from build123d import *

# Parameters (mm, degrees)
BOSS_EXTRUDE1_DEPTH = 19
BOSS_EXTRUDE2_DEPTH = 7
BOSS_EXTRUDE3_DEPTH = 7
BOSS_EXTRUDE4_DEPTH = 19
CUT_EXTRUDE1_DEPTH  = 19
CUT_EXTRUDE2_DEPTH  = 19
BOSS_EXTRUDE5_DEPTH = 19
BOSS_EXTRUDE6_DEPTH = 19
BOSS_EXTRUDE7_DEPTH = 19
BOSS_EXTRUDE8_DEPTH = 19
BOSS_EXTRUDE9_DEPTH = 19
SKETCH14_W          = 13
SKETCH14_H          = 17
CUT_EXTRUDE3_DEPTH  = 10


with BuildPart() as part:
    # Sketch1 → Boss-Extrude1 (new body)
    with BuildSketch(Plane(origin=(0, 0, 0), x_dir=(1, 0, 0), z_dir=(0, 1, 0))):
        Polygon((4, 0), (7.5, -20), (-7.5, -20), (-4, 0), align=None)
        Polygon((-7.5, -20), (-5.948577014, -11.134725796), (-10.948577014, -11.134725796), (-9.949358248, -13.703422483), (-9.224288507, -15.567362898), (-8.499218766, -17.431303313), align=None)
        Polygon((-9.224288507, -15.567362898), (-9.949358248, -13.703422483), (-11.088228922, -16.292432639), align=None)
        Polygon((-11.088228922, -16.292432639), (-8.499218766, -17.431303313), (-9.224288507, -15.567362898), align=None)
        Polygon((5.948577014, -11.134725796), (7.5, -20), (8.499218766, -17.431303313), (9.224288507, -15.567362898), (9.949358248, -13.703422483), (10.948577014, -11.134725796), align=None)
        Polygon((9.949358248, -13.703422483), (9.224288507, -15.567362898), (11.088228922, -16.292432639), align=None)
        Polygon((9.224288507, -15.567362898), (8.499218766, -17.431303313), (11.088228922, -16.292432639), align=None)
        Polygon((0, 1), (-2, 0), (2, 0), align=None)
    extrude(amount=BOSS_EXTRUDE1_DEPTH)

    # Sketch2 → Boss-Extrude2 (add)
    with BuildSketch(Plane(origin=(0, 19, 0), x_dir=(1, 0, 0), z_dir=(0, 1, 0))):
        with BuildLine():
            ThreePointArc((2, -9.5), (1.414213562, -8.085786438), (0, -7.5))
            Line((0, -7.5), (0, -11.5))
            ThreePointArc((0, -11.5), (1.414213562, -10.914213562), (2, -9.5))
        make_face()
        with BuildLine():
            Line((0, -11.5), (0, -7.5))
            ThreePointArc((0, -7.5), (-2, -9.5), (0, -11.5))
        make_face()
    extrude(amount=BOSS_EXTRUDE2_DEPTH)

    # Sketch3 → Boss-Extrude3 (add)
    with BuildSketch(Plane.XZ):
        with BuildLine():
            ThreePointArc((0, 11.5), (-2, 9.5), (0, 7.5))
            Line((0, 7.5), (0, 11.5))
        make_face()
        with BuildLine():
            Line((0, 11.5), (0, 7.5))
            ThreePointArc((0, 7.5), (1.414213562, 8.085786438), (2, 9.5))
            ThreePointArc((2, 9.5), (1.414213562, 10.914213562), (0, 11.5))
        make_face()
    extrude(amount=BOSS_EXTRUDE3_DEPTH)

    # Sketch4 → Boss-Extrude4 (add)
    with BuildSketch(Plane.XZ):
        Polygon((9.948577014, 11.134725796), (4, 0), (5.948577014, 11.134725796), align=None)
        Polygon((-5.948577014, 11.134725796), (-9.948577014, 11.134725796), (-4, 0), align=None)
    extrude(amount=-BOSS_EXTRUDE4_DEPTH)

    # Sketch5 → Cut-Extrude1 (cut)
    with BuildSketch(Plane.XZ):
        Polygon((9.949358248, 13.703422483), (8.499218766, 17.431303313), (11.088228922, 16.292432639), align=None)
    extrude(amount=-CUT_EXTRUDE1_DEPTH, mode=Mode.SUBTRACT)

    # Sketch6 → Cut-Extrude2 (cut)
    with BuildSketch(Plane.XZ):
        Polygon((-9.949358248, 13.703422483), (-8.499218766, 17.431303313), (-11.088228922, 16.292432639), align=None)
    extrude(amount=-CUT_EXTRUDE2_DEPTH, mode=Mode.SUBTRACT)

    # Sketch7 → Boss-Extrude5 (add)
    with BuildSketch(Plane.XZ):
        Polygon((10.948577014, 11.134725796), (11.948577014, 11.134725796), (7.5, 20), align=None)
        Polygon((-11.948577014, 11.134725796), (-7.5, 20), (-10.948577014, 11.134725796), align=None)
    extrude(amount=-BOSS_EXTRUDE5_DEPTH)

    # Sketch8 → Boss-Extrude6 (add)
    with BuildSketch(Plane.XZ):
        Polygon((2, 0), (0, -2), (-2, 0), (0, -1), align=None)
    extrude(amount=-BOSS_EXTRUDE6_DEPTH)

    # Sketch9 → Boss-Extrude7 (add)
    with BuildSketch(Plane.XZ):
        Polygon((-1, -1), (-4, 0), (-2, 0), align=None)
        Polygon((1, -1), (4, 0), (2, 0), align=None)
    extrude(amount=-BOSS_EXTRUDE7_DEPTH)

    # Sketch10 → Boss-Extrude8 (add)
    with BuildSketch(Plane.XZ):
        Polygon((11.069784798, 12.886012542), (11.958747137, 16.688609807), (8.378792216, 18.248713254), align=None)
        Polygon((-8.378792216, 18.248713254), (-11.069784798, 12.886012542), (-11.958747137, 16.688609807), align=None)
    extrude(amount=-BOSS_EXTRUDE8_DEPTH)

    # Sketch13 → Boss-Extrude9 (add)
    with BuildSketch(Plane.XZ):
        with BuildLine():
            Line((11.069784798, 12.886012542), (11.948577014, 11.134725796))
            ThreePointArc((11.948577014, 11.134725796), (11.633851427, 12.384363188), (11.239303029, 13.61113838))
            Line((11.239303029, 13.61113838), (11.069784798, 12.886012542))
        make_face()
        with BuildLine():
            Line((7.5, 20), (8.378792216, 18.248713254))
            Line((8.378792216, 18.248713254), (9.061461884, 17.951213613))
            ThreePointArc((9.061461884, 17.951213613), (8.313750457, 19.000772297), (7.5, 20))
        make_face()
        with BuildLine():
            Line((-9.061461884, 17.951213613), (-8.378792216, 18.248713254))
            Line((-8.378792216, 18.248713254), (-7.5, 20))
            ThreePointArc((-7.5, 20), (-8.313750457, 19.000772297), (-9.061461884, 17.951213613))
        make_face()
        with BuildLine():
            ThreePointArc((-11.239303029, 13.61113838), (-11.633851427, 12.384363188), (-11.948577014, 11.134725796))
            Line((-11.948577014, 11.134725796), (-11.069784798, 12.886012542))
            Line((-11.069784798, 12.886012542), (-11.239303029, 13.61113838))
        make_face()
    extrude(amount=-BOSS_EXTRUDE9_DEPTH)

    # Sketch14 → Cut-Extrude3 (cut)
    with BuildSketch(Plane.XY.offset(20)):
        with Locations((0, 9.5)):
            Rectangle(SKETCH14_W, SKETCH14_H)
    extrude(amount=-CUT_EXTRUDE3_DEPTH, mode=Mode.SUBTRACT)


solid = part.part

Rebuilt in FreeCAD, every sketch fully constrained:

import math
import FreeCAD as App
import Part
import Sketcher
from FreeCAD import Vector
Q = App.Units.Quantity

doc = App.newDocument("Part")
body = doc.addObject("PartDesign::Body", "Body")

sketch1 = doc.addObject("Sketcher::SketchObject", "Sketch")
body.addObject(sketch1)
sketch1.AttachmentSupport = (doc.XZ_Plane, [""])
sketch1.MapMode = "FlatFace"
sketch1.addGeometry([
    Part.LineSegment(Vector(5.948577, 11.134726, 0), Vector(4, 0, 0)),
    Part.LineSegment(Vector(4, 0, 0), Vector(2, 0, 0)),
    Part.LineSegment(Vector(2, 0, 0), Vector(0, -1, 0)),
    Part.LineSegment(Vector(0, -1, 0), Vector(-2, 0, 0)),
    Part.LineSegment(Vector(-2, 0, 0), Vector(-4, 0, 0)),
    Part.LineSegment(Vector(-4, 0, 0), Vector(-5.948577, 11.134726, 0)),
    Part.LineSegment(Vector(-5.948577, 11.134726, 0), Vector(-10.948577, 11.134726, 0)),
    Part.LineSegment(Vector(-10.948577, 11.134726, 0), Vector(-9.949358, 13.703422, 0)),
    Part.LineSegment(Vector(-9.949358, 13.703422, 0), Vector(-11.088229, 16.292433, 0)),
    Part.LineSegment(Vector(-11.088229, 16.292433, 0), Vector(-8.499219, 17.431303, 0)),
    Part.LineSegment(Vector(-8.499219, 17.431303, 0), Vector(-7.5, 20, 0)),
    Part.LineSegment(Vector(-7.5, 20, 0), Vector(7.5, 20, 0)),
    Part.LineSegment(Vector(7.5, 20, 0), Vector(8.499219, 17.431303, 0)),
    Part.LineSegment(Vector(8.499219, 17.431303, 0), Vector(11.088229, 16.292433, 0)),
    Part.LineSegment(Vector(11.088229, 16.292433, 0), Vector(9.949358, 13.703422, 0)),
    Part.LineSegment(Vector(9.949358, 13.703422, 0), Vector(10.948577, 11.134726, 0)),
    Part.LineSegment(Vector(10.948577, 11.134726, 0), Vector(5.948577, 11.134726, 0)),
], False)
sketch1.addConstraint([
    Sketcher.Constraint("Coincident", 0, 2, 1, 1),
    Sketcher.Constraint("Coincident", 1, 2, 2, 1),
    Sketcher.Constraint("Coincident", 2, 2, 3, 1),
    Sketcher.Constraint("Coincident", 3, 2, 4, 1),
    Sketcher.Constraint("Coincident", 4, 2, 5, 1),
    Sketcher.Constraint("Coincident", 5, 2, 6, 1),
    Sketcher.Constraint("Coincident", 6, 2, 7, 1),
    Sketcher.Constraint("Coincident", 7, 2, 8, 1),
    Sketcher.Constraint("Coincident", 8, 2, 9, 1),
    Sketcher.Constraint("Coincident", 9, 2, 10, 1),
    Sketcher.Constraint("Coincident", 10, 2, 11, 1),
    Sketcher.Constraint("Coincident", 11, 2, 12, 1),
    Sketcher.Constraint("Coincident", 12, 2, 13, 1),
    Sketcher.Constraint("Coincident", 13, 2, 14, 1),
    Sketcher.Constraint("Coincident", 14, 2, 15, 1),
    Sketcher.Constraint("Coincident", 15, 2, 16, 1),
    Sketcher.Constraint("Coincident", 16, 2, 0, 1),
    Sketcher.Constraint("Horizontal", 1),
    Sketcher.Constraint("Horizontal", 4),
    Sketcher.Constraint("Horizontal", 6),
    Sketcher.Constraint("Horizontal", 11),
    Sketcher.Constraint("Horizontal", 16),
    Sketcher.Constraint("Symmetric", 1, 2, 3, 2, -1, 1),
    Sketcher.Constraint("Symmetric", 0, 2, 4, 2, -2),
    Sketcher.Constraint("Symmetric", 9, 2, 12, 2, -2),
    Sketcher.Constraint("Symmetric", 8, 2, 13, 2, -2),
    Sketcher.Constraint("Symmetric", 7, 2, 14, 2, -2),
    Sketcher.Constraint("Symmetric", 6, 2, 15, 2, -2),
    Sketcher.Constraint("PointOnObject", 2, 2, -2),
    Sketcher.Constraint("Perpendicular", 8, 9),
    Sketcher.Constraint("Parallel", 7, 10),
    Sketcher.Constraint("Parallel", 12, 15),
    Sketcher.Constraint("Equal", 6, 16),
    Sketcher.Constraint("Equal", 8, 9),
    Sketcher.Constraint("Equal", 7, 10),
    Sketcher.Constraint("DistanceX", 1, 2, 1, 1, Q("2 mm")),
    Sketcher.Constraint("DistanceX", 6, 2, 6, 1, Q("5 mm")),
    Sketcher.Constraint("DistanceX", 11, 1, 11, 2, Q("15 mm")),
    Sketcher.Constraint("DistanceX", -1, 1, 0, 2, Q("4 mm")),
    Sketcher.Constraint("DistanceY", 2, 2, -1, 1, Q("1 mm")),
    Sketcher.Constraint("DistanceY", -1, 1, 10, 2, Q("20 mm")),
    Sketcher.Constraint("Distance", 7, Q("2.7562 mm")),
    Sketcher.Constraint("Distance", 0, Q("11.303941 mm")),
    Sketcher.Constraint("DistanceX", 7, 2, -1, 1, Q("9.949358 mm")),
    Sketcher.Constraint("DistanceX", 8, 2, -1, 1, Q("11.088229 mm")),
])
pad1 = doc.addObject("PartDesign::Pad", "Pad")
body.addObject(pad1)
pad1.Profile = sketch1
pad1.Length = 19
pad1.Reversed = True

sketch2 = doc.addObject("Sketcher::SketchObject", "Sketch001")
body.addObject(sketch2)
sketch2.AttachmentSupport = (doc.XZ_Plane, [""])
sketch2.MapMode = "FlatFace"
sketch2.AttachmentOffset = App.Placement(Vector(0, 0, -19), App.Rotation())
sketch2.addGeometry([
    Part.ArcOfCircle(Part.Circle(Vector(0, 9.5, 0), Vector(0, 0, 1), 2), math.radians(-90), math.radians(0)),
    Part.ArcOfCircle(Part.Circle(Vector(0, 9.5, 0), Vector(0, 0, 1), 2), math.radians(90), math.radians(270)),
    Part.ArcOfCircle(Part.Circle(Vector(0, 9.5, 0), Vector(0, 0, 1), 2), math.radians(0), math.radians(90)),
], False)
sketch2.addConstraint([
    Sketcher.Constraint("Tangent", 0, 1, 1, 2),
    Sketcher.Constraint("Tangent", 1, 1, 2, 2),
    Sketcher.Constraint("Tangent", 2, 1, 0, 2),
    Sketcher.Constraint("PointOnObject", 0, 3, -2),
    Sketcher.Constraint("PointOnObject", 0, 1, -2),
    Sketcher.Constraint("PointOnObject", 1, 1, -2),
    Sketcher.Constraint("Horizontal", 1, 3, 2, 1),
    Sketcher.Constraint("Radius", 0, Q("2 mm")),
    Sketcher.Constraint("DistanceY", -1, 1, 0, 3, Q("9.5 mm")),
])
pad2 = doc.addObject("PartDesign::Pad", "Pad001")
body.addObject(pad2)
pad2.Profile = sketch2
pad2.Length = 7
pad2.Reversed = True

sketch3 = doc.addObject("Sketcher::SketchObject", "Sketch002")
body.addObject(sketch3)
sketch3.AttachmentSupport = (doc.XZ_Plane, [""])
sketch3.MapMode = "FlatFace"
sketch3.addGeometry([
    Part.ArcOfCircle(Part.Circle(Vector(0, 9.5, 0), Vector(0, 0, 1), 2), math.radians(90), math.radians(270)),
    Part.ArcOfCircle(Part.Circle(Vector(0, 9.5, 0), Vector(0, 0, 1), 2), math.radians(-90), math.radians(0)),
    Part.ArcOfCircle(Part.Circle(Vector(0, 9.5, 0), Vector(0, 0, 1), 2), math.radians(0), math.radians(90)),
], False)
sketch3.addConstraint([
    Sketcher.Constraint("Tangent", 0, 2, 1, 1),
    Sketcher.Constraint("Tangent", 1, 2, 2, 1),
    Sketcher.Constraint("Tangent", 2, 2, 0, 1),
    Sketcher.Constraint("PointOnObject", 0, 3, -2),
    Sketcher.Constraint("PointOnObject", 0, 2, -2),
    Sketcher.Constraint("PointOnObject", 2, 2, -2),
    Sketcher.Constraint("Horizontal", 2, 3, 1, 2),
    Sketcher.Constraint("Radius", 0, Q("2 mm")),
    Sketcher.Constraint("DistanceY", -1, 1, 0, 3, Q("9.5 mm")),
])
pad3 = doc.addObject("PartDesign::Pad", "Pad002")
body.addObject(pad3)
pad3.Profile = sketch3
pad3.Length = 7

sketch4 = doc.addObject("Sketcher::SketchObject", "Sketch003")
body.addObject(sketch4)
sketch4.AttachmentSupport = (doc.XZ_Plane, [""])
sketch4.MapMode = "FlatFace"
sketch4.addGeometry([
    Part.LineSegment(Vector(4, 0, 0), Vector(9.948577, 11.134726, 0)),
    Part.LineSegment(Vector(9.948577, 11.134726, 0), Vector(5.948577, 11.134726, 0)),
    Part.LineSegment(Vector(5.948577, 11.134726, 0), Vector(4, 0, 0)),
    Part.LineSegment(Vector(-5.948577, 11.134726, 0), Vector(-9.948577, 11.134726, 0)),
    Part.LineSegment(Vector(-9.948577, 11.134726, 0), Vector(-4, 0, 0)),
    Part.LineSegment(Vector(-4, 0, 0), Vector(-5.948577, 11.134726, 0)),
], False)
sketch4.addConstraint([
    Sketcher.Constraint("Coincident", 0, 2, 1, 1),
    Sketcher.Constraint("Coincident", 1, 2, 2, 1),
    Sketcher.Constraint("Coincident", 2, 2, 0, 1),
    Sketcher.Constraint("Coincident", 3, 2, 4, 1),
    Sketcher.Constraint("Coincident", 4, 2, 5, 1),
    Sketcher.Constraint("Coincident", 5, 2, 3, 1),
    Sketcher.Constraint("Horizontal", 1),
    Sketcher.Constraint("Horizontal", 3),
    Sketcher.Constraint("Symmetric", 2, 2, 4, 2, -1, 1),
    Sketcher.Constraint("Symmetric", 0, 2, 3, 2, -2),
    Sketcher.Constraint("PointOnObject", 2, 2, -1),
    Sketcher.Constraint("Equal", 1, 3),
    Sketcher.Constraint("DistanceX", 1, 2, 1, 1, Q("4 mm")),
    Sketcher.Constraint("DistanceX", -1, 1, 2, 2, Q("4 mm")),
    Sketcher.Constraint("Distance", 0, Q("12.624092 mm")),
    Sketcher.Constraint("Distance", 2, Q("11.303941 mm")),
])
pad4 = doc.addObject("PartDesign::Pad", "Pad003")
body.addObject(pad4)
pad4.Profile = sketch4
pad4.Length = 19
pad4.Reversed = True

sketch5 = doc.addObject("Sketcher::SketchObject", "Sketch004")
body.addObject(sketch5)
sketch5.AttachmentSupport = (doc.XZ_Plane, [""])
sketch5.MapMode = "FlatFace"
sketch5.addGeometry([
    Part.LineSegment(Vector(8.499219, 17.431303, 0), Vector(9.949358, 13.703422, 0)),
    Part.LineSegment(Vector(9.949358, 13.703422, 0), Vector(11.088229, 16.292433, 0)),
    Part.LineSegment(Vector(11.088229, 16.292433, 0), Vector(8.499219, 17.431303, 0)),
], False)
sketch5.addConstraint([
    Sketcher.Constraint("Coincident", 0, 2, 1, 1),
    Sketcher.Constraint("Coincident", 1, 2, 2, 1),
    Sketcher.Constraint("Coincident", 2, 2, 0, 1),
    Sketcher.Constraint("Perpendicular", 1, 2),
    Sketcher.Constraint("Equal", 1, 2),
    Sketcher.Constraint("Distance", 0, Q("4 mm")),
    Sketcher.Constraint("DistanceX", -1, 1, 0, 2, Q("9.949358 mm")),
    Sketcher.Constraint("DistanceX", -1, 1, 1, 2, Q("11.088229 mm")),
    Sketcher.Constraint("DistanceY", -1, 1, 0, 2, Q("13.703422 mm")),
])
pocket1 = doc.addObject("PartDesign::Pocket", "Pocket")
body.addObject(pocket1)
pocket1.Profile = sketch5
pocket1.Length = 19

sketch6 = doc.addObject("Sketcher::SketchObject", "Sketch005")
body.addObject(sketch6)
sketch6.AttachmentSupport = (doc.XZ_Plane, [""])
sketch6.MapMode = "FlatFace"
sketch6.addGeometry([
    Part.LineSegment(Vector(-9.949358, 13.703422, 0), Vector(-8.499219, 17.431303, 0)),
    Part.LineSegment(Vector(-8.499219, 17.431303, 0), Vector(-11.088229, 16.292433, 0)),
    Part.LineSegment(Vector(-11.088229, 16.292433, 0), Vector(-9.949358, 13.703422, 0)),
], False)
sketch6.addConstraint([
    Sketcher.Constraint("Coincident", 0, 2, 1, 1),
    Sketcher.Constraint("Coincident", 1, 2, 2, 1),
    Sketcher.Constraint("Coincident", 2, 2, 0, 1),
    Sketcher.Constraint("Perpendicular", 1, 2),
    Sketcher.Constraint("Equal", 1, 2),
    Sketcher.Constraint("Distance", 0, Q("4 mm")),
    Sketcher.Constraint("DistanceX", 0, 2, -1, 1, Q("8.499219 mm")),
    Sketcher.Constraint("DistanceX", 1, 2, -1, 1, Q("11.088229 mm")),
    Sketcher.Constraint("DistanceY", -1, 1, 0, 2, Q("17.431303 mm")),
])
pocket2 = doc.addObject("PartDesign::Pocket", "Pocket001")
body.addObject(pocket2)
pocket2.Profile = sketch6
pocket2.Length = 19

sketch7 = doc.addObject("Sketcher::SketchObject", "Sketch006")
body.addObject(sketch7)
sketch7.AttachmentSupport = (doc.XZ_Plane, [""])
sketch7.MapMode = "FlatFace"
sketch7.addGeometry([
    Part.LineSegment(Vector(10.948577, 11.134726, 0), Vector(11.948577, 11.134726, 0)),
    Part.LineSegment(Vector(11.948577, 11.134726, 0), Vector(7.5, 20, 0)),
    Part.LineSegment(Vector(7.5, 20, 0), Vector(10.948577, 11.134726, 0)),
    Part.LineSegment(Vector(-7.5, 20, 0), Vector(-11.948577, 11.134726, 0)),
    Part.LineSegment(Vector(-11.948577, 11.134726, 0), Vector(-10.948577, 11.134726, 0)),
    Part.LineSegment(Vector(-10.948577, 11.134726, 0), Vector(-7.5, 20, 0)),
], False)
sketch7.addConstraint([
    Sketcher.Constraint("Coincident", 0, 2, 1, 1),
    Sketcher.Constraint("Coincident", 1, 2, 2, 1),
    Sketcher.Constraint("Coincident", 2, 2, 0, 1),
    Sketcher.Constraint("Coincident", 3, 2, 4, 1),
    Sketcher.Constraint("Coincident", 4, 2, 5, 1),
    Sketcher.Constraint("Coincident", 5, 2, 3, 1),
    Sketcher.Constraint("Horizontal", 0),
    Sketcher.Constraint("Horizontal", 4),
    Sketcher.Constraint("Symmetric", 0, 2, 3, 2, -2),
    Sketcher.Constraint("Symmetric", 1, 2, 5, 2, -2),
    Sketcher.Constraint("Equal", 0, 4),
    Sketcher.Constraint("DistanceX", 0, 1, 0, 2, Q("1 mm")),
    Sketcher.Constraint("DistanceY", -1, 1, 1, 2, Q("20 mm")),
    Sketcher.Constraint("DistanceX", 5, 2, 1, 2, Q("15 mm")),
    Sketcher.Constraint("Distance", 2, Q("9.512401 mm")),
    Sketcher.Constraint("Distance", 1, Q("9.918817 mm")),
])
pad5 = doc.addObject("PartDesign::Pad", "Pad004")
body.addObject(pad5)
pad5.Profile = sketch7
pad5.Length = 19
pad5.Reversed = True

sketch8 = doc.addObject("Sketcher::SketchObject", "Sketch007")
body.addObject(sketch8)
sketch8.AttachmentSupport = (doc.XZ_Plane, [""])
sketch8.MapMode = "FlatFace"
sketch8.addGeometry([
    Part.LineSegment(Vector(0, -2, 0), Vector(2, 0, 0)),
    Part.LineSegment(Vector(2, 0, 0), Vector(0, -1, 0)),
    Part.LineSegment(Vector(0, -1, 0), Vector(-2, 0, 0)),
    Part.LineSegment(Vector(-2, 0, 0), Vector(0, -2, 0)),
], False)
sketch8.addConstraint([
    Sketcher.Constraint("Coincident", 0, 2, 1, 1),
    Sketcher.Constraint("Coincident", 1, 2, 2, 1),
    Sketcher.Constraint("Coincident", 2, 2, 3, 1),
    Sketcher.Constraint("Coincident", 3, 2, 0, 1),
    Sketcher.Constraint("Symmetric", 0, 2, 2, 2, -1, 1),
    Sketcher.Constraint("PointOnObject", 0, 2, -1),
    Sketcher.Constraint("PointOnObject", 1, 2, -2),
    Sketcher.Constraint("PointOnObject", 3, 2, -2),
    Sketcher.Constraint("Perpendicular", 0, 3),
    Sketcher.Constraint("DistanceX", -1, 1, 0, 2, Q("2 mm")),
    Sketcher.Constraint("DistanceY", 1, 2, -1, 1, Q("1 mm")),
])
pad6 = doc.addObject("PartDesign::Pad", "Pad005")
body.addObject(pad6)
pad6.Profile = sketch8
pad6.Length = 19
pad6.Reversed = True

sketch9 = doc.addObject("Sketcher::SketchObject", "Sketch008")
body.addObject(sketch9)
sketch9.AttachmentSupport = (doc.XZ_Plane, [""])
sketch9.MapMode = "FlatFace"
sketch9.addGeometry([
    Part.LineSegment(Vector(-4, 0, 0), Vector(-1, -1, 0)),
    Part.LineSegment(Vector(-1, -1, 0), Vector(-2, 0, 0)),
    Part.LineSegment(Vector(-2, 0, 0), Vector(-4, 0, 0)),
    Part.LineSegment(Vector(1, -1, 0), Vector(4, 0, 0)),
    Part.LineSegment(Vector(4, 0, 0), Vector(2, 0, 0)),
    Part.LineSegment(Vector(2, 0, 0), Vector(1, -1, 0)),
], False)
sketch9.addConstraint([
    Sketcher.Constraint("Coincident", 0, 2, 1, 1),
    Sketcher.Constraint("Coincident", 1, 2, 2, 1),
    Sketcher.Constraint("Coincident", 2, 2, 0, 1),
    Sketcher.Constraint("Coincident", 3, 2, 4, 1),
    Sketcher.Constraint("Coincident", 4, 2, 5, 1),
    Sketcher.Constraint("Coincident", 5, 2, 3, 1),
    Sketcher.Constraint("Horizontal", 2),
    Sketcher.Constraint("Horizontal", 4),
    Sketcher.Constraint("Symmetric", 2, 2, 3, 2, -1, 1),
    Sketcher.Constraint("Symmetric", 1, 2, 4, 2, -2),
    Sketcher.Constraint("Symmetric", 0, 2, 5, 2, -2),
    Sketcher.Constraint("Perpendicular", 1, 5),
    Sketcher.Constraint("DistanceX", 2, 2, 2, 1, Q("2 mm")),
    Sketcher.Constraint("DistanceX", 0, 2, -1, 1, Q("1 mm")),
    Sketcher.Constraint("DistanceY", 0, 2, -1, 1, Q("1 mm")),
])
pad7 = doc.addObject("PartDesign::Pad", "Pad006")
body.addObject(pad7)
pad7.Profile = sketch9
pad7.Length = 19
pad7.Reversed = True

sketch10 = doc.addObject("Sketcher::SketchObject", "Sketch009")
body.addObject(sketch10)
sketch10.AttachmentSupport = (doc.XZ_Plane, [""])
sketch10.MapMode = "FlatFace"
sketch10.addGeometry([
    Part.LineSegment(Vector(11.069785, 12.886013, 0), Vector(11.958747, 16.68861, 0)),
    Part.LineSegment(Vector(11.958747, 16.68861, 0), Vector(8.378792, 18.248713, 0)),
    Part.LineSegment(Vector(8.378792, 18.248713, 0), Vector(11.069785, 12.886013, 0)),
    Part.LineSegment(Vector(-11.069785, 12.886013, 0), Vector(-8.378792, 18.248713, 0)),
    Part.LineSegment(Vector(-8.378792, 18.248713, 0), Vector(-11.958747, 16.68861, 0)),
    Part.LineSegment(Vector(-11.958747, 16.68861, 0), Vector(-11.069785, 12.886013, 0)),
], False)
sketch10.addConstraint([
    Sketcher.Constraint("Coincident", 0, 2, 1, 1),
    Sketcher.Constraint("Coincident", 1, 2, 2, 1),
    Sketcher.Constraint("Coincident", 2, 2, 0, 1),
    Sketcher.Constraint("Coincident", 3, 2, 4, 1),
    Sketcher.Constraint("Coincident", 4, 2, 5, 1),
    Sketcher.Constraint("Coincident", 5, 2, 3, 1),
    Sketcher.Constraint("Symmetric", 1, 2, 3, 2, -2),
    Sketcher.Constraint("Symmetric", 0, 2, 4, 2, -2),
    Sketcher.Constraint("Symmetric", 2, 2, 5, 2, -2),
    Sketcher.Constraint("Equal", 0, 1),
    Sketcher.Constraint("Distance", 2, Q("6 mm")),
    Sketcher.Constraint("DistanceY", 2, 2, 1, 2, Q("5.362701 mm")),
    Sketcher.Constraint("DistanceY", -1, 1, 0, 2, Q("16.68861 mm")),
    Sketcher.Constraint("DistanceX", 3, 2, 0, 2, Q("20.337539 mm")),
    Sketcher.Constraint("DistanceX", 5, 2, 2, 2, Q("22.13957 mm")),
])
pad8 = doc.addObject("PartDesign::Pad", "Pad007")
body.addObject(pad8)
pad8.Profile = sketch10
pad8.Length = 19
pad8.Reversed = True

sketch11 = doc.addObject("Sketcher::SketchObject", "Sketch010")
body.addObject(sketch11)
sketch11.AttachmentSupport = (doc.XZ_Plane, [""])
sketch11.MapMode = "FlatFace"
sketch11.addGeometry([
    Part.LineSegment(Vector(11.069785, 12.886013, 0), Vector(11.948577, 11.134726, 0)),
    Part.ArcOfCircle(Part.Circle(Vector(-7.59308, 6.877541, 0), Vector(0, 0, 1), 20), math.radians(12.289963), math.radians(19.674721)),
    Part.LineSegment(Vector(11.239303, 13.611138, 0), Vector(11.069785, 12.886013, 0)),
    Part.LineSegment(Vector(7.5, 20, 0), Vector(8.378792, 18.248713, 0)),
    Part.LineSegment(Vector(8.378792, 18.248713, 0), Vector(9.061462, 17.951214, 0)),
    Part.ArcOfCircle(Part.Circle(Vector(-7.593081, 6.877541, 0), Vector(0, 0, 1), 20), math.radians(33.620093), math.radians(41.004851)),
    Part.LineSegment(Vector(-9.061462, 17.951214, 0), Vector(-8.378792, 18.248713, 0)),
    Part.LineSegment(Vector(-8.378792, 18.248713, 0), Vector(-7.5, 20, 0)),
    Part.ArcOfCircle(Part.Circle(Vector(7.593081, 6.877541, 0), Vector(0, 0, 1), 20), math.radians(138.995149), math.radians(146.379907)),
    Part.ArcOfCircle(Part.Circle(Vector(7.59308, 6.877541, 0), Vector(0, 0, 1), 20), math.radians(160.325279), math.radians(167.710037)),
    Part.LineSegment(Vector(-11.948577, 11.134726, 0), Vector(-11.069785, 12.886013, 0)),
    Part.LineSegment(Vector(-11.069785, 12.886013, 0), Vector(-11.239303, 13.611138, 0)),
], False)
sketch11.addConstraint([
    Sketcher.Constraint("Coincident", 0, 2, 1, 1),
    Sketcher.Constraint("Coincident", 1, 2, 2, 1),
    Sketcher.Constraint("Coincident", 2, 2, 0, 1),
    Sketcher.Constraint("Coincident", 3, 2, 4, 1),
    Sketcher.Constraint("Coincident", 4, 2, 5, 1),
    Sketcher.Constraint("Coincident", 5, 2, 3, 1),
    Sketcher.Constraint("Coincident", 6, 2, 7, 1),
    Sketcher.Constraint("Coincident", 7, 2, 8, 1),
    Sketcher.Constraint("Coincident", 8, 2, 6, 1),
    Sketcher.Constraint("Coincident", 9, 2, 10, 1),
    Sketcher.Constraint("Coincident", 10, 2, 11, 1),
    Sketcher.Constraint("Coincident", 11, 2, 9, 1),
    Sketcher.Constraint("Coincident", 5, 3, 1, 3),
    Sketcher.Constraint("Coincident", 9, 3, 8, 3),
    Sketcher.Constraint("Equal", 1, 5),
    Sketcher.Constraint("Equal", 5, 8),
    Sketcher.Constraint("Equal", 8, 9),
    Sketcher.Constraint("Symmetric", 1, 3, 8, 3, -2),
    Sketcher.Constraint("Symmetric", 3, 2, 6, 2, -2),
    Sketcher.Constraint("Symmetric", 2, 2, 10, 2, -2),
    Sketcher.Constraint("Parallel", 0, 3),
    Sketcher.Constraint("Parallel", 7, 10),
    Sketcher.Constraint("Horizontal", 5, 2, 7, 2),
    Sketcher.Constraint("Horizontal", 4, 2, 8, 2),
    Sketcher.Constraint("Horizontal", 1, 2, 11, 2),
    Sketcher.Constraint("Equal", 0, 3),
    Sketcher.Constraint("Equal", 2, 4),
    Sketcher.Constraint("Radius", 1, Q("20 mm")),
    Sketcher.Constraint("DistanceY", -1, 1, 5, 2, Q("20 mm")),
    Sketcher.Constraint("DistanceX", 7, 2, 5, 2, Q("15 mm")),
    Sketcher.Constraint("DistanceY", 2, 2, 3, 2, Q("5.362701 mm")),
    Sketcher.Constraint("DistanceY", 4, 2, 3, 2, Q("0.2975 mm")),
    Sketcher.Constraint("Distance", 0, Q("1.959408 mm")),
    Sketcher.Constraint("DistanceX", 1, 3, -1, 1, Q("7.59308 mm")),
    Sketcher.Constraint("DistanceY", -1, 1, 1, 2, Q("13.611138 mm")),
])
pad9 = doc.addObject("PartDesign::Pad", "Pad008")
body.addObject(pad9)
pad9.Profile = sketch11
pad9.Length = 19
pad9.Reversed = True

sketch12 = doc.addObject("Sketcher::SketchObject", "Sketch011")
body.addObject(sketch12)
sketch12.AttachmentSupport = (doc.XY_Plane, [""])
sketch12.MapMode = "FlatFace"
sketch12.AttachmentOffset = App.Placement(Vector(0, 0, 20), App.Rotation())
sketch12.addGeometry([
    Part.LineSegment(Vector(-6.5, 18, 0), Vector(-6.5, 1, 0)),
    Part.LineSegment(Vector(-6.5, 1, 0), Vector(6.5, 1, 0)),
    Part.LineSegment(Vector(6.5, 1, 0), Vector(6.5, 18, 0)),
    Part.LineSegment(Vector(6.5, 18, 0), Vector(-6.5, 18, 0)),
], False)
sketch12.addConstraint([
    Sketcher.Constraint("Coincident", 0, 2, 1, 1),
    Sketcher.Constraint("Coincident", 1, 2, 2, 1),
    Sketcher.Constraint("Coincident", 2, 2, 3, 1),
    Sketcher.Constraint("Coincident", 3, 2, 0, 1),
    Sketcher.Constraint("Vertical", 0),
    Sketcher.Constraint("Horizontal", 1),
    Sketcher.Constraint("Vertical", 2),
    Sketcher.Constraint("Horizontal", 3),
    Sketcher.Constraint("DistanceX", 1, 1, 1, 2, Q("13 mm")),
    Sketcher.Constraint("DistanceY", 0, 2, 0, 1, Q("17 mm")),
    Sketcher.Constraint("DistanceY", -1, 1, 0, 2, Q("1 mm")),
    Sketcher.Constraint("DistanceX", 0, 2, -1, 1, Q("6.5 mm")),
])
pocket3 = doc.addObject("PartDesign::Pocket", "Pocket002")
body.addObject(pocket3)
pocket3.Profile = sketch12
pocket3.Length = 10

doc.recompute()
